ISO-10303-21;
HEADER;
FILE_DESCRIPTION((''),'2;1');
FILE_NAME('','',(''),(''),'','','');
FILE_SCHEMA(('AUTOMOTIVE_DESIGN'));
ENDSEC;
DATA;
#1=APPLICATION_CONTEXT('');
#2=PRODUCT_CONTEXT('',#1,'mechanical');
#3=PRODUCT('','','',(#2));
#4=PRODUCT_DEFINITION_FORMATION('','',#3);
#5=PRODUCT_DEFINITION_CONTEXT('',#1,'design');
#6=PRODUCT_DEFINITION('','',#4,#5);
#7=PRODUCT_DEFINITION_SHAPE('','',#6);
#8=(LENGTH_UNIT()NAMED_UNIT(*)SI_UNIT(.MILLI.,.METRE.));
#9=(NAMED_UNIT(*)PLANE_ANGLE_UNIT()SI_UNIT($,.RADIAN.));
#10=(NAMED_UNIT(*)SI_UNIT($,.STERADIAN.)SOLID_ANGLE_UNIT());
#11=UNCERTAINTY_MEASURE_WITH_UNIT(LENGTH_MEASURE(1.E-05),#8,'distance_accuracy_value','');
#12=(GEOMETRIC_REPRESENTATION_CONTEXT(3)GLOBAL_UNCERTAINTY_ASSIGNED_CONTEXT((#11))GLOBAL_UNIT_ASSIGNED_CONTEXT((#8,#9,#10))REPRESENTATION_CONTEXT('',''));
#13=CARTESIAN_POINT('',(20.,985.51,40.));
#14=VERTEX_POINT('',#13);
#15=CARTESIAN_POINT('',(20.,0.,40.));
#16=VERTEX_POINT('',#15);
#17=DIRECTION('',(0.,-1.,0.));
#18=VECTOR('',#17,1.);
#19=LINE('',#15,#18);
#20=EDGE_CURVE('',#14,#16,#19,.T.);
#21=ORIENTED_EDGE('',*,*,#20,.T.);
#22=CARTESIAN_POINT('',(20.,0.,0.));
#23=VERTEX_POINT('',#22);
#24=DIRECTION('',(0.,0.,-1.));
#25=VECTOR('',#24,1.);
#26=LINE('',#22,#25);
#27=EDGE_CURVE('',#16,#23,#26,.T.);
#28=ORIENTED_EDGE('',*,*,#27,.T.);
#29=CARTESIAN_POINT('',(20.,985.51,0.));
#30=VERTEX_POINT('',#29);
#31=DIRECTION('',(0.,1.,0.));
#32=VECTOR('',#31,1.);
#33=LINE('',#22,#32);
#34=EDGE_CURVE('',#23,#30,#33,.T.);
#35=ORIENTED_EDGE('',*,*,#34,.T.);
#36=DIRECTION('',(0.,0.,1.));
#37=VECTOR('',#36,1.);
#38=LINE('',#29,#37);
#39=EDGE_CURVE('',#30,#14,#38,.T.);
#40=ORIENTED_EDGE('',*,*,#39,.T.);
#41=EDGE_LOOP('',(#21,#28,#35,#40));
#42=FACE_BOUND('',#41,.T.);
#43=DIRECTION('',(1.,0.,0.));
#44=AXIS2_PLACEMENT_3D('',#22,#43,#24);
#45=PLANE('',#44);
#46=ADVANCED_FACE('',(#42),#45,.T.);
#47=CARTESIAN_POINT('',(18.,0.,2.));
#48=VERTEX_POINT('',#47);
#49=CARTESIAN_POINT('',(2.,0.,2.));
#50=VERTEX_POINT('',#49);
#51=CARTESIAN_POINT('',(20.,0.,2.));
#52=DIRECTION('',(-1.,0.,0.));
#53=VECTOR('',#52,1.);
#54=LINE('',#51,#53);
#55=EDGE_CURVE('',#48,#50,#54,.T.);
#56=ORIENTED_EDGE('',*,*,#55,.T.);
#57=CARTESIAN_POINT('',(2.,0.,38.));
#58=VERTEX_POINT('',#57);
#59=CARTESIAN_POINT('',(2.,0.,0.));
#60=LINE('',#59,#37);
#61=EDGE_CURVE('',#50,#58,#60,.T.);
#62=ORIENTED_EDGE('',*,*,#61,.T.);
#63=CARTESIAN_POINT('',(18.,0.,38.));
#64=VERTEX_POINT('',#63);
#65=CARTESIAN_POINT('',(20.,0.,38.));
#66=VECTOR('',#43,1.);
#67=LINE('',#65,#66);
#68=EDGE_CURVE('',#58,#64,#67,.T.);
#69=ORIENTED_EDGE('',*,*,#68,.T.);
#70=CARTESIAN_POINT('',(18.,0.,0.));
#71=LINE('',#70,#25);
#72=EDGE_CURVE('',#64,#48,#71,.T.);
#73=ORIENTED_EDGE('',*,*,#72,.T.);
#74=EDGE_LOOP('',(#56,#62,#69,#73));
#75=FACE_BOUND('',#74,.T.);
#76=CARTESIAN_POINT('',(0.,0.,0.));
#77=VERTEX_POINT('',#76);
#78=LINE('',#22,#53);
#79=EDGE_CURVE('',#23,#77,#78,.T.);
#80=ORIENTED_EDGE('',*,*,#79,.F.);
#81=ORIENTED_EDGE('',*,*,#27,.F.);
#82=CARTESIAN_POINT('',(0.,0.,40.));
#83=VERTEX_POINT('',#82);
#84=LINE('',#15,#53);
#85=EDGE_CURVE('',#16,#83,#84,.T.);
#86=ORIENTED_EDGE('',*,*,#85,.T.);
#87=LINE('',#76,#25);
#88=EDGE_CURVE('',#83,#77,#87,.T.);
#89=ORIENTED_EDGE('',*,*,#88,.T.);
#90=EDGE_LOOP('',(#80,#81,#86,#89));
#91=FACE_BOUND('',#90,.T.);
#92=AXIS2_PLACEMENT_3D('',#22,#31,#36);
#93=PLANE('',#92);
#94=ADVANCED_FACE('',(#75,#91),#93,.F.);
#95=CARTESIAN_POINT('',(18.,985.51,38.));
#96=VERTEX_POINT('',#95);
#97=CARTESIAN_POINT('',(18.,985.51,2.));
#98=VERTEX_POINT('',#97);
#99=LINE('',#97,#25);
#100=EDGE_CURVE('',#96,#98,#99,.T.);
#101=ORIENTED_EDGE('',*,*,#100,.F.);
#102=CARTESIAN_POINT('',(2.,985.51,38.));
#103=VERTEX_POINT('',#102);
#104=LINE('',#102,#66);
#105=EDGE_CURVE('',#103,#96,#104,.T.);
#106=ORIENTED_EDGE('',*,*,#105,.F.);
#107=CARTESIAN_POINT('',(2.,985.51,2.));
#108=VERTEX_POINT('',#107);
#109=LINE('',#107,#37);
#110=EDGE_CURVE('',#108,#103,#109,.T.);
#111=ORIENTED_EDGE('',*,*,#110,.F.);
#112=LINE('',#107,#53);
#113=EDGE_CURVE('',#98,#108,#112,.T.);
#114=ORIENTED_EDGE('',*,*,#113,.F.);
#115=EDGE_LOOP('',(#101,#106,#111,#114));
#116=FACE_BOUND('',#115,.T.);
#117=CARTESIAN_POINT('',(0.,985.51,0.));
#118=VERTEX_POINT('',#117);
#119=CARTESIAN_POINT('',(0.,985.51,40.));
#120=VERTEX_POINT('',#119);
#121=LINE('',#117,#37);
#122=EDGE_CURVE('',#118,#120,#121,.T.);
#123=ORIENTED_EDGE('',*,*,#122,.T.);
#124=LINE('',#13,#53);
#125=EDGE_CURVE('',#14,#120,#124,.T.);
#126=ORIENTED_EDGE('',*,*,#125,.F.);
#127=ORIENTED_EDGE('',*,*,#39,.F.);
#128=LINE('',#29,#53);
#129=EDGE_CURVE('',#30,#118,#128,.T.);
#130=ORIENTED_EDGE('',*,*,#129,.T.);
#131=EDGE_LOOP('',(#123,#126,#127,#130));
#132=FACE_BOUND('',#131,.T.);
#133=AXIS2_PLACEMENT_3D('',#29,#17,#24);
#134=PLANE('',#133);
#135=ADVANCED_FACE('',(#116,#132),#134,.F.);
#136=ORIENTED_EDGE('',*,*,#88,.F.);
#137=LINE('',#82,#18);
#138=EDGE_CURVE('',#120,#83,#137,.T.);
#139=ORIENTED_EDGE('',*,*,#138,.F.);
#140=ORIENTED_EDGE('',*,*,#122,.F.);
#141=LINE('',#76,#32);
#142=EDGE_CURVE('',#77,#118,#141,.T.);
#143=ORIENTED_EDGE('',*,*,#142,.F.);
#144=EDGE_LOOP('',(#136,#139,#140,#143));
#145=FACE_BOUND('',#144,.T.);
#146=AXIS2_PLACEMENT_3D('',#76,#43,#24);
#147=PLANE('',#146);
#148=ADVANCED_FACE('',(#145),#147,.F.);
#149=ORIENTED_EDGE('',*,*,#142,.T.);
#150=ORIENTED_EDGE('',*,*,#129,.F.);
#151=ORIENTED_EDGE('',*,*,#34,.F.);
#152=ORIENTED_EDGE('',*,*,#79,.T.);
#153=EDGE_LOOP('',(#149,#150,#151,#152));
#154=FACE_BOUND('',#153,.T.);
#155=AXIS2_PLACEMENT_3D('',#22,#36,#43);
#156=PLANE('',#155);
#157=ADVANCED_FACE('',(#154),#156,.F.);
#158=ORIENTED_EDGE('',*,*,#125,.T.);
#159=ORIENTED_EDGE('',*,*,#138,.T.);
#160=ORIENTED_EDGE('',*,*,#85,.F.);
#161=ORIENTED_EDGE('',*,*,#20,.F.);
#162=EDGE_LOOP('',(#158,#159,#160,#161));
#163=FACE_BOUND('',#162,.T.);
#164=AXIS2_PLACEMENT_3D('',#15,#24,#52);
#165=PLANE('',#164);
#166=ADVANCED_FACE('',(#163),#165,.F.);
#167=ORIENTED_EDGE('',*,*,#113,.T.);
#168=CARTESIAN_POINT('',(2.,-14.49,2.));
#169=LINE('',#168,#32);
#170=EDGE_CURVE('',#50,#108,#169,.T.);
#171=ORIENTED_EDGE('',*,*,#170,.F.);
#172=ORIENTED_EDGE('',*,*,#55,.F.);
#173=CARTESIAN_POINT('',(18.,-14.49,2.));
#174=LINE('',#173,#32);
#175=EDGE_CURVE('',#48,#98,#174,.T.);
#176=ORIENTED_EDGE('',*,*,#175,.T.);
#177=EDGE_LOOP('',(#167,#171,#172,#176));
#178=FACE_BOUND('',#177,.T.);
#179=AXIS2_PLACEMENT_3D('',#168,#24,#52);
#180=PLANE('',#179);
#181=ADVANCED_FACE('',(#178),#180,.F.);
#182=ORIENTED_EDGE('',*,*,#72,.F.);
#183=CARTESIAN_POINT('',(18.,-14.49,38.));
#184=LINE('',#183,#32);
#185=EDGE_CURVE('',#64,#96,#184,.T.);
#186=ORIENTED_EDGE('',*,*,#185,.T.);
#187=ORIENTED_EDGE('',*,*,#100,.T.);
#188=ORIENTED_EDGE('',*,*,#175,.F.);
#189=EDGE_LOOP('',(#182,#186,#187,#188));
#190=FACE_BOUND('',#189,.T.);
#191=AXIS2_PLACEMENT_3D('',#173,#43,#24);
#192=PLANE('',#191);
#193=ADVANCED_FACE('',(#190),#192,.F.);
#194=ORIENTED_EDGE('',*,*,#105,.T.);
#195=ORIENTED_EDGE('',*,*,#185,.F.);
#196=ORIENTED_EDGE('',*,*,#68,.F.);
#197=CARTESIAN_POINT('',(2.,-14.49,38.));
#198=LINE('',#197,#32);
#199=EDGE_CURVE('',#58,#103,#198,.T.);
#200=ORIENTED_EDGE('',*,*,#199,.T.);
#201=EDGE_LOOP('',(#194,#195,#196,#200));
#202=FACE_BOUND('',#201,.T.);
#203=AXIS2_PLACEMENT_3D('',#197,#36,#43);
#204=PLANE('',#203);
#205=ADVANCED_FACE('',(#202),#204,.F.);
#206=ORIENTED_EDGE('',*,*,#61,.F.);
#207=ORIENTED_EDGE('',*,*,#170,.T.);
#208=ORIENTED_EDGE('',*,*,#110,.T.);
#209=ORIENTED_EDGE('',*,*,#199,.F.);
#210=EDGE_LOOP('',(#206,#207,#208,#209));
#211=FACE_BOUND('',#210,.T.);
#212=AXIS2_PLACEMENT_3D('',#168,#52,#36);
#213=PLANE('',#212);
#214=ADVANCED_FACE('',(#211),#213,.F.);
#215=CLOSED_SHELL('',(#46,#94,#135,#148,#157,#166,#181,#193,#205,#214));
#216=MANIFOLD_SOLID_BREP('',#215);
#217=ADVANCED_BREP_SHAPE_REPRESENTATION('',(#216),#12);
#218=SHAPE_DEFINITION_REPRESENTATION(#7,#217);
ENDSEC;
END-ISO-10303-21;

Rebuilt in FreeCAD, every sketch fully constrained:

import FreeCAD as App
import Part
import Sketcher
Q = App.Units.Quantity


def add_polygon(sketch, points):
    """Adds a closed chain of lines whose ends are joined by coincident constraints."""
    first, n = sketch.GeometryCount, len(points)
    for a, b in zip(points, points[1:] + points[:1]):
        sketch.addGeometry(Part.LineSegment(App.Vector(*a, 0), App.Vector(*b, 0)), False)
    for i in range(n):
        sketch.addConstraint(Sketcher.Constraint("Coincident", first + i, 2, first + (i + 1) % n, 1))

doc = App.newDocument("Part")
body = doc.addObject("PartDesign::Body", "Body")

sketch1 = doc.addObject("Sketcher::SketchObject", "Sketch")
body.addObject(sketch1)
sketch1.AttachmentSupport = (doc.YZ_Plane, [""])
sketch1.MapMode = "FlatFace"
add_polygon(sketch1, [(986, 40), (0, 40), (0, 0), (986, 0)])
sketch1.addConstraint(Sketcher.Constraint("Horizontal", 0))
sketch1.addConstraint(Sketcher.Constraint("Vertical", 1))
sketch1.addConstraint(Sketcher.Constraint("Horizontal", 2))
sketch1.addConstraint(Sketcher.Constraint("Vertical", 3))
sketch1.addConstraint(Sketcher.Constraint("Coincident", 1, 2, -1, 1))
sketch1.addConstraint(Sketcher.Constraint("DistanceY", 1, 2, 1, 1, Q("40 mm")))
sketch1.addConstraint(Sketcher.Constraint("DistanceX", 0, 2, 0, 1, Q("985.51 mm")))
pad1 = doc.addObject("PartDesign::Pad", "Pad")
body.addObject(pad1)
pad1.Profile = sketch1
pad1.Length = 20

sketch2 = doc.addObject("Sketcher::SketchObject", "Sketch001")
body.addObject(sketch2)
sketch2.AttachmentSupport = (doc.XZ_Plane, [""])
sketch2.MapMode = "FlatFace"
sketch2.AttachmentOffset = App.Placement(App.Vector(0, 0, -985.51), App.Rotation())
add_polygon(sketch2, [(2, 2), (2, 38), (18, 38), (18, 2)])
sketch2.addConstraint(Sketcher.Constraint("Vertical", 0))
sketch2.addConstraint(Sketcher.Constraint("Horizontal", 1))
sketch2.addConstraint(Sketcher.Constraint("Vertical", 2))
sketch2.addConstraint(Sketcher.Constraint("Horizontal", 3))
sketch2.addConstraint(Sketcher.Constraint("DistanceX", 1, 1, 1, 2, Q("16 mm")))
sketch2.addConstraint(Sketcher.Constraint("DistanceY", 0, 1, 0, 2, Q("36 mm")))
sketch2.addConstraint(Sketcher.Constraint("DistanceX", -1, 1, 0, 2, Q("2 mm")))
sketch2.addConstraint(Sketcher.Constraint("DistanceY", -1, 1, 0, 2, Q("38 mm")))
pocket1 = doc.addObject("PartDesign::Pocket", "Pocket")
body.addObject(pocket1)
pocket1.Profile = sketch2
pocket1.Length = 1000
pocket1.Reversed = True

doc.recompute()
